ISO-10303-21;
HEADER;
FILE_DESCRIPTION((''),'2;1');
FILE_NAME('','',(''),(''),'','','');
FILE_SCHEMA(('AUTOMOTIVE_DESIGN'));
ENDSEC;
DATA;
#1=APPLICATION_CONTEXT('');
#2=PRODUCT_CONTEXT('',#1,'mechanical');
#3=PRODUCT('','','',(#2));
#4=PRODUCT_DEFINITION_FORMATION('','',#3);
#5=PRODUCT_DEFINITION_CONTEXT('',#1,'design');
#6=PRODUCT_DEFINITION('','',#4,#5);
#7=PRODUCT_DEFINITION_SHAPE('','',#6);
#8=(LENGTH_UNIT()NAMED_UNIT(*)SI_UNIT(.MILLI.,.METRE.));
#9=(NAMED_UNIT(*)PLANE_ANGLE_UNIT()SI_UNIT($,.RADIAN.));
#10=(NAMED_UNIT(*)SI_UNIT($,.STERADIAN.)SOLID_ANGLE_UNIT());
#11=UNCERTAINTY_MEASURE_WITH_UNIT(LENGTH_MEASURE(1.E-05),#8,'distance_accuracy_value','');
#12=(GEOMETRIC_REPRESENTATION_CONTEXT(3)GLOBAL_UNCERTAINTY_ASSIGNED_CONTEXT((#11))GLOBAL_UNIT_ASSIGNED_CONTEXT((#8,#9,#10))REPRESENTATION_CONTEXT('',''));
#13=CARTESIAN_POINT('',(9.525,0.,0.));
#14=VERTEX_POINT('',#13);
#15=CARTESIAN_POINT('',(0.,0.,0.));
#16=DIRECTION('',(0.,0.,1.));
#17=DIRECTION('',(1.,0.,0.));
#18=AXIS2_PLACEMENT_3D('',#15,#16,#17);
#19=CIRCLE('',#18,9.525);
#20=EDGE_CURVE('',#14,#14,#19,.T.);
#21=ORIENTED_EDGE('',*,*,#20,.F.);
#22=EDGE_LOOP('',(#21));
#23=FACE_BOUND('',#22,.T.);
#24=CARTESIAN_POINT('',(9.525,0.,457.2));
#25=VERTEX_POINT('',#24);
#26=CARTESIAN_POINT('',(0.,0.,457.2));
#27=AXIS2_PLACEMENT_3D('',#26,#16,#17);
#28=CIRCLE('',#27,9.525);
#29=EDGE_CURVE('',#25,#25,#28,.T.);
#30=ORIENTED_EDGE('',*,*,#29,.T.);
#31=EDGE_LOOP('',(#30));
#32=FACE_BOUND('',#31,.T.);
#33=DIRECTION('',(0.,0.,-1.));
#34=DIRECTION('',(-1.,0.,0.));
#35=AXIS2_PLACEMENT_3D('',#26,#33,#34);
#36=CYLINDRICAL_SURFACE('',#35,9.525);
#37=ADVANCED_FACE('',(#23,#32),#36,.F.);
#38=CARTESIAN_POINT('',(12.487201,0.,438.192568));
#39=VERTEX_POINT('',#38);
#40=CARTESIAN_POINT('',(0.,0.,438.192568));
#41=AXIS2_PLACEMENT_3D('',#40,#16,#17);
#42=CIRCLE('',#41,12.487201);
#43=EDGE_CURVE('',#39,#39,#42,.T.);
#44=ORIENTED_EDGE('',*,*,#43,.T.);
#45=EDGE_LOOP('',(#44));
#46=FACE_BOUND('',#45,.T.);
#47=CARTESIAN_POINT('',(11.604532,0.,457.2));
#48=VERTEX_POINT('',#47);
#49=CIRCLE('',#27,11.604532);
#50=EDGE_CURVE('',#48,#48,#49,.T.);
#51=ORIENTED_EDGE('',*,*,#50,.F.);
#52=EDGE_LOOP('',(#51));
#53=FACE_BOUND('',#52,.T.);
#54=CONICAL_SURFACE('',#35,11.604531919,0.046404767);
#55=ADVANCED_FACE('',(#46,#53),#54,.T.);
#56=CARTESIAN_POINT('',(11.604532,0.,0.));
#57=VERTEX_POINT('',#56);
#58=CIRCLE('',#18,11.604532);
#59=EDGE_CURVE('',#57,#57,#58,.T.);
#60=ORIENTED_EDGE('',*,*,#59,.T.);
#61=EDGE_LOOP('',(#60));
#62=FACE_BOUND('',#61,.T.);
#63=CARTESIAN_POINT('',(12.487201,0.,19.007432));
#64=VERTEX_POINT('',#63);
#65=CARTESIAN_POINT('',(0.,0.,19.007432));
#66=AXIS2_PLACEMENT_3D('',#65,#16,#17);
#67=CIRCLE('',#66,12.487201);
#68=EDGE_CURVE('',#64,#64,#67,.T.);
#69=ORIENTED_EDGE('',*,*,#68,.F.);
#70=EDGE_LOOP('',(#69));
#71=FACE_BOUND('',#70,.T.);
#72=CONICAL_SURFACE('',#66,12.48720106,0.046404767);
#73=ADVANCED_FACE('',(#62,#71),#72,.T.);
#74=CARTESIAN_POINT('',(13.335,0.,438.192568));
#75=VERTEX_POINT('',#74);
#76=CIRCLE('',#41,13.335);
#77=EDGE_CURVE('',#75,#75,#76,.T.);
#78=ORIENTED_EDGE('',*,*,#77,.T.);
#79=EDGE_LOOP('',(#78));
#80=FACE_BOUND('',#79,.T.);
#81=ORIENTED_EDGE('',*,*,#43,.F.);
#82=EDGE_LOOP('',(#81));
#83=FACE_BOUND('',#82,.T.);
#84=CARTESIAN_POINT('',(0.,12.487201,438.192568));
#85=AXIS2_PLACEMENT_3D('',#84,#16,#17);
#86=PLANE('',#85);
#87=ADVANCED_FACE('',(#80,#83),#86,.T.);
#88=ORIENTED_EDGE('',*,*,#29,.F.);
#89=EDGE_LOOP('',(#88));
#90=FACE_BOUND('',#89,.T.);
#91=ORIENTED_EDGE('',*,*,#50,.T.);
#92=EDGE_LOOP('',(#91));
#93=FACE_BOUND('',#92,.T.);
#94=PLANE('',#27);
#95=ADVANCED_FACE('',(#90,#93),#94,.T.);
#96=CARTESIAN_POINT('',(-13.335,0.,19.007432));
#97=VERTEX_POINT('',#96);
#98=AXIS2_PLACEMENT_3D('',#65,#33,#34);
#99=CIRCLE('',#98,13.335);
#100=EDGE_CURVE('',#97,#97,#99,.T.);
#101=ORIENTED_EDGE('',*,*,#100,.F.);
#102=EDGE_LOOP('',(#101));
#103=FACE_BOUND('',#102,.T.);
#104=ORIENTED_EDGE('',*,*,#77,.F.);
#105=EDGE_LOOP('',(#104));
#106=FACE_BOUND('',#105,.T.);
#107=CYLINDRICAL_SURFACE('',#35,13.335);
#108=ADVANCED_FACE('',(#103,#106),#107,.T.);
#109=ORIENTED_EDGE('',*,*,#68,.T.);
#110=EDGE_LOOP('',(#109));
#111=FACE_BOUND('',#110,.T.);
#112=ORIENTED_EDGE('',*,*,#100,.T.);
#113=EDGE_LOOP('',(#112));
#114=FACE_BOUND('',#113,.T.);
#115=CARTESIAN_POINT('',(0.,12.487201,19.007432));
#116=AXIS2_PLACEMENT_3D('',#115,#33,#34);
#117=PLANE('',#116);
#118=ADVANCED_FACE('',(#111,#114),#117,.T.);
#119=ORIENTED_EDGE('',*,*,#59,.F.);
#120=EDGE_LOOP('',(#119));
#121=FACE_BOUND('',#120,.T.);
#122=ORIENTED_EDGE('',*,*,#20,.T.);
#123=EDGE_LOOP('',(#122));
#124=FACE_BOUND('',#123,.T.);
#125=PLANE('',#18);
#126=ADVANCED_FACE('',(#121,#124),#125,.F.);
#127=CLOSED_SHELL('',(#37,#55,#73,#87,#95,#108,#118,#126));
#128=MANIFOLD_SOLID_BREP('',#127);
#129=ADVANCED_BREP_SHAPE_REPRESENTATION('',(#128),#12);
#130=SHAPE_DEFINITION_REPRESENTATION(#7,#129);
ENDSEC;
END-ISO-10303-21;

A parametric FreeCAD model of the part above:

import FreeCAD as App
import Part
import Sketcher
from FreeCAD import Vector
Q = App.Units.Quantity

doc = App.newDocument("Part")
body = doc.addObject("PartDesign::Body", "Body")

# Sketch on XY plane
sketch1 = body.newObject("Sketcher::SketchObject", "Sketch")
sketch1.AttachmentSupport = (doc.getObject("XY_Plane"), [""])
sketch1.MapMode = "FlatFace"
sketch1.addGeometry([
    Part.Circle(Vector(0, 0, 0), Vector(0, 0, 1), 13),
    Part.Circle(Vector(0, 0, 0), Vector(0, 0, 1), 10),
], False)
sketch1.addConstraint([
    Sketcher.Constraint("Coincident", 0, 3, -1, 1),
    Sketcher.Constraint("Coincident", 1, 3, -1, 1),
    Sketcher.Constraint("Diameter", 0, Q("1.05 in")),
    Sketcher.Constraint("Diameter", 1, Q("0.75 in")),
])
pad1 = body.newObject("PartDesign::Pad", "Pad")
pad1.Profile = sketch1
pad1.Length = Q("18 in")

# Sketch on YZ plane
sketch2 = body.newObject("Sketcher::SketchObject", "Sketch001")
sketch2.AttachmentSupport = (doc.getObject("YZ_Plane"), [""])
sketch2.MapMode = "FlatFace"
sketch2.addGeometry([
    Part.LineSegment(Vector(12, 0, 0), Vector(20, 0, 0)),  # 0
    Part.LineSegment(Vector(20, 0, 0), Vector(20, 19, 0)),  # 1
    Part.LineSegment(Vector(20, 19, 0), Vector(12, 19, 0)),  # 2
    Part.LineSegment(Vector(12, 19, 0), Vector(12, 0, 0)),  # 3
    Part.LineSegment(Vector(20, 438, 0), Vector(20, 457, 0)),  # 4
    Part.LineSegment(Vector(20, 457, 0), Vector(12, 457, 0)),  # 5
    Part.LineSegment(Vector(12, 457, 0), Vector(12, 438, 0)),  # 6
    Part.LineSegment(Vector(12, 438, 0), Vector(20, 438, 0)),  # 7
], False)
sketch2.addConstraint([
    Sketcher.Constraint("Coincident", 0, 2, 1, 1),
    Sketcher.Constraint("Coincident", 1, 2, 2, 1),
    Sketcher.Constraint("Coincident", 2, 2, 3, 1),
    Sketcher.Constraint("Coincident", 3, 2, 0, 1),
    Sketcher.Constraint("Coincident", 4, 2, 5, 1),
    Sketcher.Constraint("Coincident", 5, 2, 6, 1),
    Sketcher.Constraint("Coincident", 6, 2, 7, 1),
    Sketcher.Constraint("Coincident", 7, 2, 4, 1),
    Sketcher.Constraint("Horizontal", 0),
    Sketcher.Constraint("Vertical", 1),
    Sketcher.Constraint("Horizontal", 2),
    Sketcher.Constraint("Vertical", 4),
    Sketcher.Constraint("Horizontal", 5),
    Sketcher.Constraint("Horizontal", 7),
    Sketcher.Constraint("PointOnObject", 0, 2, -1),
    Sketcher.Constraint("Vertical", 1, 2, 4, 2),
    Sketcher.Constraint("Vertical", 3, 2, 5, 2),
    Sketcher.Constraint("Vertical", 2, 2, 6, 2),
    Sketcher.Constraint("Equal", 1, 4),
    Sketcher.Constraint("DistanceY", -1, 1, 4, 2, Q("18 in")),
    Sketcher.Constraint("DistanceX", -1, 1, 2, 2, Q("12.487201 mm")),
    Sketcher.Constraint("DistanceX", 0, 1, 0, 2, Q("7.977443 mm")),
    Sketcher.Constraint("DistanceX", 2, 2, 2, 1, Q("7.094774 mm")),
    Sketcher.Constraint("DistanceY", 1, 1, 1, 2, Q("19.007432 mm")),
])
groove = body.newObject("PartDesign::Groove", "Groove")
groove.Profile = sketch2
groove.ReferenceAxis = (sketch2, ["V_Axis"])
groove.Angle = 360

doc.recompute()
